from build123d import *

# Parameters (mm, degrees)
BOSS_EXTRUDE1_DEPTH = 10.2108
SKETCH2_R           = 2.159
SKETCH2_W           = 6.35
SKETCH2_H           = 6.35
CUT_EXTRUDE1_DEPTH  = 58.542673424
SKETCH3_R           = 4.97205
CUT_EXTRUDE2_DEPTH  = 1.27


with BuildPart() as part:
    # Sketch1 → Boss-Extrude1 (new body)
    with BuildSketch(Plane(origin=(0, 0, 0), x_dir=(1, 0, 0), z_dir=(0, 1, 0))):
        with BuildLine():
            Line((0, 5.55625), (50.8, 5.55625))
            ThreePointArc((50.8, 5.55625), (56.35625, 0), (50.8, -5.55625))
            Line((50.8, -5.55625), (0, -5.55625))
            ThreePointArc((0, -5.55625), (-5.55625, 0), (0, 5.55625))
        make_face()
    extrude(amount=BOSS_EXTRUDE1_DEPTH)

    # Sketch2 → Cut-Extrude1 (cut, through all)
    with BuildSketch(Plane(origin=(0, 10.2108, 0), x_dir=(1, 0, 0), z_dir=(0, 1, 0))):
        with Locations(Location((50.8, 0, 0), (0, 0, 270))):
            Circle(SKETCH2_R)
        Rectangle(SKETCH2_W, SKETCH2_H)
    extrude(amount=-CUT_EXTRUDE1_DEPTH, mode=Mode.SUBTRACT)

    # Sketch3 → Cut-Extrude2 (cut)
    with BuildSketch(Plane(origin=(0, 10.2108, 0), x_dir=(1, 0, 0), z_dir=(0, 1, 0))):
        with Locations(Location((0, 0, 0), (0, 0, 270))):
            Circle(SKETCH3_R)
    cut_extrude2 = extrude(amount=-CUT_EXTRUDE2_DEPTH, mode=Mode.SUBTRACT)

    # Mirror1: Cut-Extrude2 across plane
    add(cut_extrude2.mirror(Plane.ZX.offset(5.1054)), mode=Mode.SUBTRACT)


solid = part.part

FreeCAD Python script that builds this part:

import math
import FreeCAD as App
import Part
import Sketcher

V = App.Vector
Q = App.Units.Quantity

doc = App.newDocument("Part")
body = doc.addObject("PartDesign::Body", "Body")

# Sketch on XZ plane
sketch1 = body.newObject("Sketcher::SketchObject", "Sketch")
sketch1.AttachmentSupport = (doc.getObject("XZ_Plane"), [""])
sketch1.MapMode = "FlatFace"
sketch1.addGeometry([
    Part.LineSegment(V(50.8, -5.55625, 0), V(0, -5.55625, 0)),
    Part.ArcOfCircle(Part.Circle(V(0, 0, 0), V(0, 0, 1), 5.55625), math.radians(90), math.radians(270)),
    Part.LineSegment(V(0, 5.55625, 0), V(50.8, 5.55625, 0)),
    Part.ArcOfCircle(Part.Circle(V(50.8, 0, 0), V(0, 0, 1), 5.55625), math.radians(-90), math.radians(90)),
], False)
sketch1.addConstraint([
    Sketcher.Constraint("Tangent", 0, 2, 1, 2),
    Sketcher.Constraint("Tangent", 1, 1, 2, 1),
    Sketcher.Constraint("Tangent", 2, 2, 3, 2),
    Sketcher.Constraint("Tangent", 3, 1, 0, 1),
    Sketcher.Constraint("Horizontal", 0),
    Sketcher.Constraint("Horizontal", 2),
    Sketcher.Constraint("Coincident", 1, 3, -1, 1),
    Sketcher.Constraint("DistanceX", 0, 2, 0, 1, Q("2 in")),
    Sketcher.Constraint("Radius", 1, Q("0.21875 in")),
])
pad1 = body.newObject("PartDesign::Pad", "Pad")
pad1.Profile = sketch1
pad1.Length = Q("0.402 in")
pad1.Reversed = True

# Sketch on XZ plane
sketch2 = body.newObject("Sketcher::SketchObject", "Sketch001")
sketch2.AttachmentSupport = (doc.getObject("XZ_Plane"), [""])
sketch2.MapMode = "FlatFace"
sketch2.AttachmentOffset = App.Placement(V(0, 0, -0.402 * 25.4), App.Rotation())
sketch2.addGeometry([
    Part.Circle(V(50.8, 0, 0), V(0, 0, 1), 2.159),  # 0
    Part.LineSegment(V(-3.175, -3.175, 0), V(-3.175, 3.175, 0)),  # 1
    Part.LineSegment(V(-3.175, 3.175, 0), V(3.175, 3.175, 0)),  # 2
    Part.LineSegment(V(3.175, 3.175, 0), V(3.175, -3.175, 0)),  # 3
    Part.LineSegment(V(3.175, -3.175, 0), V(-3.175, -3.175, 0)),  # 4
], False)
sketch2.addConstraint([
    Sketcher.Constraint("Coincident", 1, 2, 2, 1),
    Sketcher.Constraint("Coincident", 2, 2, 3, 1),
    Sketcher.Constraint("Coincident", 3, 2, 4, 1),
    Sketcher.Constraint("Coincident", 4, 2, 1, 1),
    Sketcher.Constraint("Vertical", 1),
    Sketcher.Constraint("Horizontal", 2),
    Sketcher.Constraint("Vertical", 3),
    Sketcher.Constraint("Horizontal", 4),
    Sketcher.Constraint("Symmetric", 1, 2, 3, 2, -1, 1),
    Sketcher.Constraint("PointOnObject", 0, 3, -1),
    Sketcher.Constraint("Equal", 4, 1),
    Sketcher.Constraint("Diameter", 0, Q("0.17 in")),
    Sketcher.Constraint("DistanceX", -1, 1, 0, 3, Q("2 in")),
    Sketcher.Constraint("DistanceX", 2, 1, 2, 2, Q("0.25 in")),
])
pocket1 = body.newObject("PartDesign::Pocket", "Pocket")
pocket1.Profile = sketch2
pocket1.Type = "ThroughAll"
pocket1.Reversed = True

# Sketch on XZ plane
sketch3 = body.newObject("Sketcher::SketchObject", "Sketch002")
sketch3.AttachmentSupport = (doc.getObject("XZ_Plane"), [""])
sketch3.MapMode = "FlatFace"
sketch3.AttachmentOffset = App.Placement(V(0, 0, -0.402 * 25.4), App.Rotation())
sketch3.addGeometry(Part.Circle(V(0, 0, 0), V(0, 0, 1), 4.97205), False)
sketch3.addConstraint([
    Sketcher.Constraint("Coincident", 0, 3, -1, 1),
    Sketcher.Constraint("Diameter", 0, Q("0.3915 in")),
])
pocket2 = body.newObject("PartDesign::Pocket", "Pocket001")
pocket2.Profile = sketch3
pocket2.Length = Q("0.05 in")
pocket2.Reversed = True
doc.recompute()

datumplane = body.newObject("PartDesign::Plane", "DatumPlane")
datumplane.AttachmentSupport = (doc.getObject("XZ_Plane"), [""])
datumplane.MapMode = "FlatFace"
datumplane.AttachmentOffset = App.Placement(V(0, 0, -0.201 * 25.4), App.Rotation())
mirrored = body.newObject("PartDesign::Mirrored", "Mirrored")
mirrored.Originals = [pocket2]
mirrored.MirrorPlane = (datumplane, [""])
body.Tip = mirrored

doc.recompute()
